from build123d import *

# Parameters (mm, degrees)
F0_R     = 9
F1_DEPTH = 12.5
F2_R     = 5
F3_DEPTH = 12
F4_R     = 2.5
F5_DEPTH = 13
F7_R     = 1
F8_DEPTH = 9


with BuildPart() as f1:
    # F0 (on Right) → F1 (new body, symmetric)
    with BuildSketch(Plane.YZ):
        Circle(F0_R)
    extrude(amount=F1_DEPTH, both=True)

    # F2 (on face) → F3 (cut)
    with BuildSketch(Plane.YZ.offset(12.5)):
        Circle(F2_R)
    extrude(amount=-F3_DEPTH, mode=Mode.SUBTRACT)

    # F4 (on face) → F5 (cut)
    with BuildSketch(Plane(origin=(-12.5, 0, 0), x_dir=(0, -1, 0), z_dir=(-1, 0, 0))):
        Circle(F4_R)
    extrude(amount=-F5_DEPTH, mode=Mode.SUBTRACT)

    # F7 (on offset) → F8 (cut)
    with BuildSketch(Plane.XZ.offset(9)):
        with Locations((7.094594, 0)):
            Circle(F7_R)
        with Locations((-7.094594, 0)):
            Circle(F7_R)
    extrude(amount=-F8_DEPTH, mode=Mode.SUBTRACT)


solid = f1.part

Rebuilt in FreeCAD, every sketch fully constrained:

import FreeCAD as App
import Part
import Sketcher

V = App.Vector
Q = App.Units.Quantity

doc = App.newDocument("Part")
body = doc.addObject("PartDesign::Body", "Body")

# Sketch on YZ plane
sketch1 = body.newObject("Sketcher::SketchObject", "Sketch")
sketch1.AttachmentSupport = (doc.getObject("YZ_Plane"), [""])
sketch1.MapMode = "FlatFace"
sketch1.addGeometry(Part.Circle(V(0, 0, 0), V(0, 0, 1), 9), False)
sketch1.addConstraint(Sketcher.Constraint("Coincident", 0, 3, -1, 1))
sketch1.addConstraint(Sketcher.Constraint("Diameter", 0, Q("18 mm")))
pad1 = body.newObject("PartDesign::Pad", "Pad")
pad1.Profile = sketch1
pad1.Length = 25
pad1.Midplane = True

# Sketch on YZ plane
sketch2 = body.newObject("Sketcher::SketchObject", "Sketch001")
sketch2.AttachmentSupport = (doc.getObject("YZ_Plane"), [""])
sketch2.MapMode = "FlatFace"
sketch2.AttachmentOffset = App.Placement(V(0, 0, 12.5), App.Rotation())
sketch2.addGeometry(Part.Circle(V(0, 0, 0), V(0, 0, 1), 5), False)
sketch2.addConstraint(Sketcher.Constraint("Coincident", 0, 3, -1, 1))
sketch2.addConstraint(Sketcher.Constraint("Diameter", 0, Q("10 mm")))
pocket1 = body.newObject("PartDesign::Pocket", "Pocket")
pocket1.Profile = sketch2
pocket1.Length = 12

# Sketch on YZ plane
sketch3 = body.newObject("Sketcher::SketchObject", "Sketch002")
sketch3.AttachmentSupport = (doc.getObject("YZ_Plane"), [""])
sketch3.MapMode = "FlatFace"
sketch3.AttachmentOffset = App.Placement(V(0, 0, -12.5), App.Rotation())
sketch3.addGeometry(Part.Circle(V(0, 0, 0), V(0, 0, 1), 2.5), False)
sketch3.addConstraint(Sketcher.Constraint("Coincident", 0, 3, -1, 1))
sketch3.addConstraint(Sketcher.Constraint("Diameter", 0, Q("5 mm")))
pocket2 = body.newObject("PartDesign::Pocket", "Pocket001")
pocket2.Profile = sketch3
pocket2.Length = 13
pocket2.Reversed = True

# Sketch on XZ plane
sketch4 = body.newObject("Sketcher::SketchObject", "Sketch003")
sketch4.AttachmentSupport = (doc.getObject("XZ_Plane"), [""])
sketch4.MapMode = "FlatFace"
sketch4.AttachmentOffset = App.Placement(V(0, 0, 9), App.Rotation())
sketch4.addGeometry(Part.Circle(V(7.094594, 0, 0), V(0, 0, 1), 1), False)
sketch4.addGeometry(Part.Circle(V(-7.094594, 0, 0), V(0, 0, 1), 1), False)
sketch4.addConstraint(Sketcher.Constraint("Equal", 0, 1))
sketch4.addConstraint(Sketcher.Constraint("Symmetric", 0, 3, 1, 3, -1, 1))
sketch4.addConstraint(Sketcher.Constraint("PointOnObject", 0, 3, -1))
sketch4.addConstraint(Sketcher.Constraint("Diameter", 0, Q("2 mm")))
sketch4.addConstraint(Sketcher.Constraint("DistanceX", -1, 1, 0, 3, Q("7.094594 mm")))
pocket3 = body.newObject("PartDesign::Pocket", "Pocket002")
pocket3.Profile = sketch4
pocket3.Length = 9

doc.recompute()
